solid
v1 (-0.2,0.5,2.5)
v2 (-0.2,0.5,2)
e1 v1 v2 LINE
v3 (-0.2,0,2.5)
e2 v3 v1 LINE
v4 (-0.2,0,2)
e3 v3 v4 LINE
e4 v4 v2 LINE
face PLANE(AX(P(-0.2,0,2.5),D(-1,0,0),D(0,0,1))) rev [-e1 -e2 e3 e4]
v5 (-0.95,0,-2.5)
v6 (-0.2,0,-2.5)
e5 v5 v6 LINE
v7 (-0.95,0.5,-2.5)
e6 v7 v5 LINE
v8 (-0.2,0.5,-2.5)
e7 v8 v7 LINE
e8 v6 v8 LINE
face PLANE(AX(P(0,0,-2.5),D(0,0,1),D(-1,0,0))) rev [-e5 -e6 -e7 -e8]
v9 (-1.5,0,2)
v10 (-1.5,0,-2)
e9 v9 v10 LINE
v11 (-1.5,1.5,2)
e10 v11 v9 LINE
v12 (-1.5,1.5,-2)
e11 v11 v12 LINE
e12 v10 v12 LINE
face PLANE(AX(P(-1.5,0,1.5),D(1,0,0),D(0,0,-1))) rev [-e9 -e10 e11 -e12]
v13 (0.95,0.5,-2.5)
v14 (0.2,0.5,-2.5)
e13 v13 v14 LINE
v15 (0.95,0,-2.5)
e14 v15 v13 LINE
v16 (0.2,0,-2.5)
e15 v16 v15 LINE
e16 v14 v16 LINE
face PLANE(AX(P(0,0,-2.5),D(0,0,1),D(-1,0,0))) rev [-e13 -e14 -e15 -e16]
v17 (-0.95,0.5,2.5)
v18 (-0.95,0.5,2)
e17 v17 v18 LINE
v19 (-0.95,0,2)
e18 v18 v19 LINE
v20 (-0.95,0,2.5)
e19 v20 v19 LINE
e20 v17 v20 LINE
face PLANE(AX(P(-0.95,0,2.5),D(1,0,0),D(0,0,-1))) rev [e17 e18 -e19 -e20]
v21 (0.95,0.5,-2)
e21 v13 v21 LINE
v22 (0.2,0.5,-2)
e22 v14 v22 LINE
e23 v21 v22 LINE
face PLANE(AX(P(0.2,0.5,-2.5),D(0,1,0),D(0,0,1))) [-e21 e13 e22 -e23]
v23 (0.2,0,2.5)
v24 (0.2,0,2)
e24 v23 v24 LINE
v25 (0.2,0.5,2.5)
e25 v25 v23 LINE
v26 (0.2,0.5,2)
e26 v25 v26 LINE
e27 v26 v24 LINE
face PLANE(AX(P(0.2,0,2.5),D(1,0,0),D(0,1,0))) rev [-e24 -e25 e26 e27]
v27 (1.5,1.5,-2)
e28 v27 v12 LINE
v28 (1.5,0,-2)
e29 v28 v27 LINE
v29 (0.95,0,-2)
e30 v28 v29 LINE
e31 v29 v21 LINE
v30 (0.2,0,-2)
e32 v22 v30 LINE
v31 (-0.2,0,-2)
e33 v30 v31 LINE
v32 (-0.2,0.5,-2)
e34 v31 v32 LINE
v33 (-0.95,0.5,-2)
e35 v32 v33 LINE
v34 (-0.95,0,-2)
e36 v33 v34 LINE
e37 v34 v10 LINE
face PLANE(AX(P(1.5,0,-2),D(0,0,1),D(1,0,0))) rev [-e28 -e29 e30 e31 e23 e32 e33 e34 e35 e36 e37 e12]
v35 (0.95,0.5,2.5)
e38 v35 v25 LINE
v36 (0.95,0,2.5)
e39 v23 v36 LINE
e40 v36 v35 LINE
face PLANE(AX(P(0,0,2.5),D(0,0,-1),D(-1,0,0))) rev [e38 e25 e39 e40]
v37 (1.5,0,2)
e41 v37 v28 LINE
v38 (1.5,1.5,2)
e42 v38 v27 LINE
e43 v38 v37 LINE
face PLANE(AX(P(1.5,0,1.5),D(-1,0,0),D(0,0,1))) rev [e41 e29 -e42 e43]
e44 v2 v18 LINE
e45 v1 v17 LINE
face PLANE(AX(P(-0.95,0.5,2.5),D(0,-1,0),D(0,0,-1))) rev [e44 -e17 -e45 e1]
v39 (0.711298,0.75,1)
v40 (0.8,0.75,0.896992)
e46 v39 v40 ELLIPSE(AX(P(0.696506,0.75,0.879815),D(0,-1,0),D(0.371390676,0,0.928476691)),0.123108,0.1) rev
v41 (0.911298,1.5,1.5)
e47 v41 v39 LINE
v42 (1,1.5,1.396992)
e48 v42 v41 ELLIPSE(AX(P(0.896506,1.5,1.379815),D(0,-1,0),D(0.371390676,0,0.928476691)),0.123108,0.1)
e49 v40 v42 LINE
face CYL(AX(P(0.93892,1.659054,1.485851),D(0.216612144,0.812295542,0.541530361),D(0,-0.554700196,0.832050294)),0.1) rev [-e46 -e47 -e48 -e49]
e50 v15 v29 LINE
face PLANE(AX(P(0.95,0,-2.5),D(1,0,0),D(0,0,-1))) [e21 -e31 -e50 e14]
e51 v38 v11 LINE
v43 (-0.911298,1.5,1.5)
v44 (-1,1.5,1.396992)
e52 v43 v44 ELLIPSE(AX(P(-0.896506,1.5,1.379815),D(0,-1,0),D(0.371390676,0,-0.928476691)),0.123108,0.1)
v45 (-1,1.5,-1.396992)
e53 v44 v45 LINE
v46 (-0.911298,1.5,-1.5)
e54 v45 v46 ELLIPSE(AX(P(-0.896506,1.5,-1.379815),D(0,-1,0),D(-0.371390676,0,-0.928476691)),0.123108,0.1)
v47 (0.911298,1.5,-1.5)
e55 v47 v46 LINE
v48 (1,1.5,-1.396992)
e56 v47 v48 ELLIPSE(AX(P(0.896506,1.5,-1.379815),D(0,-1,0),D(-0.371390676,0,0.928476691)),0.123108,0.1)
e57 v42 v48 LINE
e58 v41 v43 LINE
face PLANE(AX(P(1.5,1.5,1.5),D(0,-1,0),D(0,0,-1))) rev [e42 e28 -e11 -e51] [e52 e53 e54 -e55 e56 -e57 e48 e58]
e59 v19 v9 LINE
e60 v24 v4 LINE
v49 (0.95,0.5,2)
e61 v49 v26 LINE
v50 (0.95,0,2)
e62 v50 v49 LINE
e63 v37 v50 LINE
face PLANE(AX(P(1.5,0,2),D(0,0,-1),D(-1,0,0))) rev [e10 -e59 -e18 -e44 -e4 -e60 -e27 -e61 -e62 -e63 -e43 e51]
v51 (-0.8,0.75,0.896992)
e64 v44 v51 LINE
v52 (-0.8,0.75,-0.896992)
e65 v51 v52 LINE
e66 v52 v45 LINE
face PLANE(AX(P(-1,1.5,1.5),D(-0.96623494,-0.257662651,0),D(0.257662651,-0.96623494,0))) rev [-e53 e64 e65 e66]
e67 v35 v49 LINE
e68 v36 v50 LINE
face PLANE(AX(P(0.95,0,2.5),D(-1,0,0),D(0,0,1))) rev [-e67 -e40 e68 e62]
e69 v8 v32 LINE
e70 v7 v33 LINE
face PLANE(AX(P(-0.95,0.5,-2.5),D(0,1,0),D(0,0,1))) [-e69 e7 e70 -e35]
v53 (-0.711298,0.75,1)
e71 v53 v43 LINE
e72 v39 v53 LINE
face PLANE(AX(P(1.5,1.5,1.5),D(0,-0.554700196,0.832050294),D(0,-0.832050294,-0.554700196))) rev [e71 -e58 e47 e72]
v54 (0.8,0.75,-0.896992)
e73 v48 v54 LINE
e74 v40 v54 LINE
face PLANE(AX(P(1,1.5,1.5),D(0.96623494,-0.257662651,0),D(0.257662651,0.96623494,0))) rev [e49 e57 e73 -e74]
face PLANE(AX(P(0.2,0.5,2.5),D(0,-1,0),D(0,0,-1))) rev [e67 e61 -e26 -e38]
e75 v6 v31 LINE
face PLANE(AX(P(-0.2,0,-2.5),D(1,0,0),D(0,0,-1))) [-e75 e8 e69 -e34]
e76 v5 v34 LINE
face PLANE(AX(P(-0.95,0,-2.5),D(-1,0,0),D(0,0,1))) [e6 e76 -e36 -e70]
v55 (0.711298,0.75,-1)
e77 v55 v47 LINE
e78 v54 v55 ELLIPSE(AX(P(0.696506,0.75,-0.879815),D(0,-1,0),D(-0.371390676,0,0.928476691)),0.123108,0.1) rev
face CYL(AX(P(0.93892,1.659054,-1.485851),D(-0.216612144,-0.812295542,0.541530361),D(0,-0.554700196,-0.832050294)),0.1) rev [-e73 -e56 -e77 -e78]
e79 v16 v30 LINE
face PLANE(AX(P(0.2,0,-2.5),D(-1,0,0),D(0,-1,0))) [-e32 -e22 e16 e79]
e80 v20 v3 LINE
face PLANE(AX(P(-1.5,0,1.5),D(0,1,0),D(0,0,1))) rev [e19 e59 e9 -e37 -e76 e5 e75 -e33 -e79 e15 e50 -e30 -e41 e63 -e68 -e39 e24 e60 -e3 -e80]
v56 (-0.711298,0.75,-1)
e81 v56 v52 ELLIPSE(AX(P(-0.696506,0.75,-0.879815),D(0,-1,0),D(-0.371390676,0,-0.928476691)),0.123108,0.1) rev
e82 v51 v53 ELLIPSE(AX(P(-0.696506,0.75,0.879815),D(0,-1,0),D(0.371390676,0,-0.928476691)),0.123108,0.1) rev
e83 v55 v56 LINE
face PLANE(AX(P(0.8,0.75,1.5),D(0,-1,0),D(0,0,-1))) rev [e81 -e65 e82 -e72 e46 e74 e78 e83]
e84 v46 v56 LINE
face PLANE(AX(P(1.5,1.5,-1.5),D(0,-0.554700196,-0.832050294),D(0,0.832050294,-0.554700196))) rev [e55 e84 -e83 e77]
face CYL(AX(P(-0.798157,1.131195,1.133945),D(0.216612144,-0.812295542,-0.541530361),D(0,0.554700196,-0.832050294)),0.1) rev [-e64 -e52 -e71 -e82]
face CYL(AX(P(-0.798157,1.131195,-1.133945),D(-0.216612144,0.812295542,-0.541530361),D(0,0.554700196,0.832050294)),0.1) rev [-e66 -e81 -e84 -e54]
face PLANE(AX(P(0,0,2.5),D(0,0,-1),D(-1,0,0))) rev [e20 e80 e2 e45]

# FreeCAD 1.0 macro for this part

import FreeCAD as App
import Part
import Sketcher


def edges_at(feature, points):
    """Names of the edges that pass closest to the given points."""
    edges = feature.Shape.Edges
    near = lambda p: min(range(len(edges)), key=lambda i: edges[i].distToShape(Part.Vertex(*p))[0])
    return sorted({f"Edge{near(p) + 1}" for p in points})

doc = App.newDocument("Part")
body = doc.addObject("PartDesign::Body", "Body")

# Sketch on XY plane
sketch1 = body.newObject("Sketcher::SketchObject", "Sketch")
sketch1.AttachmentSupport = (doc.getObject("XY_Plane"), [""])
sketch1.MapMode = "FlatFace"
sketch1.addGeometry([
    Part.LineSegment(App.Vector(-1.5, 0, 0), App.Vector(1.5, 0, 0)),  # 0
    Part.LineSegment(App.Vector(1.5, 0, 0), App.Vector(1.5, 1.5, 0)),  # 1
    Part.LineSegment(App.Vector(1.5, 1.5, 0), App.Vector(1, 1.5, 0)),  # 2
    Part.LineSegment(App.Vector(1, 1.5, 0), App.Vector(0.8, 0.8, 0)),  # 3
    Part.LineSegment(App.Vector(0.8, 0.8, 0), App.Vector(-0.8, 0.8, 0)),  # 4
    Part.LineSegment(App.Vector(-0.8, 0.8, 0), App.Vector(-1, 1.5, 0)),  # 5
    Part.LineSegment(App.Vector(-1, 1.5, 0), App.Vector(-1.5, 1.5, 0)),  # 6
    Part.LineSegment(App.Vector(-1.5, 1.5, 0), App.Vector(-1.5, 0, 0)),  # 7
], False)
sketch1.addConstraint([
    Sketcher.Constraint("Coincident", 0, 2, 1, 1),
    Sketcher.Constraint("Coincident", 1, 2, 2, 1),
    Sketcher.Constraint("Coincident", 2, 2, 3, 1),
    Sketcher.Constraint("Coincident", 3, 2, 4, 1),
    Sketcher.Constraint("Coincident", 4, 2, 5, 1),
    Sketcher.Constraint("Coincident", 5, 2, 6, 1),
    Sketcher.Constraint("Coincident", 6, 2, 7, 1),
    Sketcher.Constraint("Coincident", 7, 2, 0, 1),
    Sketcher.Constraint("Horizontal", 0),
    Sketcher.Constraint("Vertical", 1),
    Sketcher.Constraint("Horizontal", 2),
    Sketcher.Constraint("Horizontal", 4),
    Sketcher.Constraint("Horizontal", 6),
    Sketcher.Constraint("Vertical", 7),
    Sketcher.Constraint("Symmetric", 0, 2, 7, 2, -1, 1),
    Sketcher.Constraint("Symmetric", 2, 2, 5, 2, -2),
    Sketcher.Constraint("Equal", 3, 5),
    Sketcher.Constraint("DistanceX", 0, 1, 0, 2, 3.0),
    Sketcher.Constraint("DistanceX", 2, 2, 2, 1, 0.5),
    Sketcher.Constraint("DistanceX", 4, 2, 4, 1, 1.6),
    Sketcher.Constraint("DistanceY", 1, 1, 1, 2, 1.5),
    Sketcher.Constraint("DistanceY", -1, 1, 3, 2, 0.75),
])
pad1 = body.newObject("PartDesign::Pad", "Pad")
pad1.Profile = sketch1
pad1.Length = 3
pad1.Midplane = True

# Sketch on YZ plane
sketch2 = body.newObject("Sketcher::SketchObject", "Sketch001")
sketch2.AttachmentSupport = (doc.getObject("YZ_Plane"), [""])
sketch2.MapMode = "FlatFace"
sketch2.addGeometry([
    Part.LineSegment(App.Vector(0, -1, 0), App.Vector(0, -2, 0)),  # 0
    Part.LineSegment(App.Vector(0, -2, 0), App.Vector(1.5, -2, 0)),  # 1
    Part.LineSegment(App.Vector(1.5, -2, 0), App.Vector(1.5, -1.5, 0)),  # 2
    Part.LineSegment(App.Vector(1.5, -1.5, 0), App.Vector(0.8, -1, 0)),  # 3
    Part.LineSegment(App.Vector(0.8, -1, 0), App.Vector(0, -1, 0)),  # 4
    Part.LineSegment(App.Vector(0, 1, 0), App.Vector(0.8, 1, 0)),  # 5
    Part.LineSegment(App.Vector(0.8, 1, 0), App.Vector(1.5, 1.5, 0)),  # 6
    Part.LineSegment(App.Vector(1.5, 1.5, 0), App.Vector(1.5, 2, 0)),  # 7
    Part.LineSegment(App.Vector(1.5, 2, 0), App.Vector(0, 2, 0)),  # 8
    Part.LineSegment(App.Vector(0, 2, 0), App.Vector(0, 1, 0)),  # 9
], False)
sketch2.addConstraint([
    Sketcher.Constraint("Coincident", 0, 2, 1, 1),
    Sketcher.Constraint("Coincident", 1, 2, 2, 1),
    Sketcher.Constraint("Coincident", 2, 2, 3, 1),
    Sketcher.Constraint("Coincident", 3, 2, 4, 1),
    Sketcher.Constraint("Coincident", 4, 2, 0, 1),
    Sketcher.Constraint("Coincident", 5, 2, 6, 1),
    Sketcher.Constraint("Coincident", 6, 2, 7, 1),
    Sketcher.Constraint("Coincident", 7, 2, 8, 1),
    Sketcher.Constraint("Coincident", 8, 2, 9, 1),
    Sketcher.Constraint("Coincident", 9, 2, 5, 1),
    Sketcher.Constraint("Vertical", 0),
    Sketcher.Constraint("Horizontal", 1),
    Sketcher.Constraint("Vertical", 2),
    Sketcher.Constraint("Horizontal", 4),
    Sketcher.Constraint("Horizontal", 5),
    Sketcher.Constraint("Vertical", 7),
    Sketcher.Constraint("Horizontal", 8),
    Sketcher.Constraint("Vertical", 9),
    Sketcher.Constraint("Symmetric", 0, 2, 8, 2, -1, 1),
    Sketcher.Constraint("Symmetric", 3, 2, 5, 2, -1),
    Sketcher.Constraint("Symmetric", 2, 2, 6, 2, -1),
    Sketcher.Constraint("PointOnObject", 0, 2, -2),
    Sketcher.Constraint("DistanceY", 0, 2, 0, 1, 1.0),
    Sketcher.Constraint("DistanceX", 1, 1, 1, 2, 1.5),
    Sketcher.Constraint("DistanceY", 2, 1, 2, 2, 0.5),
    Sketcher.Constraint("DistanceY", 0, 2, -1, 1, 2.0),
    Sketcher.Constraint("DistanceX", 4, 2, 4, 1, 0.75),
])
pad2 = body.newObject("PartDesign::Pad", "Pad001")
pad2.Profile = sketch2
pad2.Length = 3
pad2.Midplane = True
doc.recompute()

fillet = body.newObject("PartDesign::Fillet", "Fillet")
fillet.Base = (pad2, edges_at(pad2, [
    (0.9, 1.125, -1.25),
    (-0.9, 1.125, -1.25),
    (0.9, 1.125, 1.25),
    (-0.9, 1.125, 1.25),
]))
fillet.Radius = 0.1

# Sketch on XY plane
sketch3 = body.newObject("Sketcher::SketchObject", "Sketch002")
sketch3.AttachmentSupport = (doc.getObject("XY_Plane"), [""])
sketch3.MapMode = "FlatFace"
sketch3.AttachmentOffset = App.Placement(App.Vector(0, 0, 2), App.Rotation())
sketch3.addGeometry([
    Part.LineSegment(App.Vector(-0.9, 0.5, 0), App.Vector(-0.9, 0, 0)),  # 0
    Part.LineSegment(App.Vector(-0.9, 0, 0), App.Vector(-0.2, 0, 0)),  # 1
    Part.LineSegment(App.Vector(-0.2, 0, 0), App.Vector(-0.2, 0.5, 0)),  # 2
    Part.LineSegment(App.Vector(-0.2, 0.5, 0), App.Vector(-0.9, 0.5, 0)),  # 3
    Part.LineSegment(App.Vector(0.2, 0.5, 0), App.Vector(0.2, 0, 0)),  # 4
    Part.LineSegment(App.Vector(0.2, 0, 0), App.Vector(0.9, 0, 0)),  # 5
    Part.LineSegment(App.Vector(0.9, 0, 0), App.Vector(0.9, 0.5, 0)),  # 6
    Part.LineSegment(App.Vector(0.9, 0.5, 0), App.Vector(0.2, 0.5, 0)),  # 7
], False)
sketch3.addConstraint([
    Sketcher.Constraint("Coincident", 0, 2, 1, 1),
    Sketcher.Constraint("Coincident", 1, 2, 2, 1),
    Sketcher.Constraint("Coincident", 2, 2, 3, 1),
    Sketcher.Constraint("Coincident", 3, 2, 0, 1),
    Sketcher.Constraint("Coincident", 4, 2, 5, 1),
    Sketcher.Constraint("Coincident", 5, 2, 6, 1),
    Sketcher.Constraint("Coincident", 6, 2, 7, 1),
    Sketcher.Constraint("Coincident", 7, 2, 4, 1),
    Sketcher.Constraint("Vertical", 0),
    Sketcher.Constraint("Horizontal", 1),
    Sketcher.Constraint("Vertical", 2),
    Sketcher.Constraint("Horizontal", 3),
    Sketcher.Constraint("Vertical", 4),
    Sketcher.Constraint("Horizontal", 5),
    Sketcher.Constraint("Vertical", 6),
    Sketcher.Constraint("Horizontal", 7),
    Sketcher.Constraint("Symmetric", 1, 2, 4, 2, -1, 1),
    Sketcher.Constraint("Symmetric", 0, 2, 5, 2, -2),
    Sketcher.Constraint("Horizontal", 3, 2, 6, 2),
    Sketcher.Constraint("DistanceY", 0, 2, 0, 1, 0.5),
    Sketcher.Constraint("DistanceX", 1, 1, 1, 2, 0.75),
    Sketcher.Constraint("DistanceX", 1, 2, -1, 1, 0.2),
])
pad3 = body.newObject("PartDesign::Pad", "Pad002")
pad3.Profile = sketch3
pad3.Length = 0.5
doc.recompute()

mirrored = body.newObject("PartDesign::Mirrored", "Mirrored")
mirrored.Originals = [pad3]
mirrored.MirrorPlane = (doc.getObject("XY_Plane"), [""])
body.Tip = mirrored

doc.recompute()
